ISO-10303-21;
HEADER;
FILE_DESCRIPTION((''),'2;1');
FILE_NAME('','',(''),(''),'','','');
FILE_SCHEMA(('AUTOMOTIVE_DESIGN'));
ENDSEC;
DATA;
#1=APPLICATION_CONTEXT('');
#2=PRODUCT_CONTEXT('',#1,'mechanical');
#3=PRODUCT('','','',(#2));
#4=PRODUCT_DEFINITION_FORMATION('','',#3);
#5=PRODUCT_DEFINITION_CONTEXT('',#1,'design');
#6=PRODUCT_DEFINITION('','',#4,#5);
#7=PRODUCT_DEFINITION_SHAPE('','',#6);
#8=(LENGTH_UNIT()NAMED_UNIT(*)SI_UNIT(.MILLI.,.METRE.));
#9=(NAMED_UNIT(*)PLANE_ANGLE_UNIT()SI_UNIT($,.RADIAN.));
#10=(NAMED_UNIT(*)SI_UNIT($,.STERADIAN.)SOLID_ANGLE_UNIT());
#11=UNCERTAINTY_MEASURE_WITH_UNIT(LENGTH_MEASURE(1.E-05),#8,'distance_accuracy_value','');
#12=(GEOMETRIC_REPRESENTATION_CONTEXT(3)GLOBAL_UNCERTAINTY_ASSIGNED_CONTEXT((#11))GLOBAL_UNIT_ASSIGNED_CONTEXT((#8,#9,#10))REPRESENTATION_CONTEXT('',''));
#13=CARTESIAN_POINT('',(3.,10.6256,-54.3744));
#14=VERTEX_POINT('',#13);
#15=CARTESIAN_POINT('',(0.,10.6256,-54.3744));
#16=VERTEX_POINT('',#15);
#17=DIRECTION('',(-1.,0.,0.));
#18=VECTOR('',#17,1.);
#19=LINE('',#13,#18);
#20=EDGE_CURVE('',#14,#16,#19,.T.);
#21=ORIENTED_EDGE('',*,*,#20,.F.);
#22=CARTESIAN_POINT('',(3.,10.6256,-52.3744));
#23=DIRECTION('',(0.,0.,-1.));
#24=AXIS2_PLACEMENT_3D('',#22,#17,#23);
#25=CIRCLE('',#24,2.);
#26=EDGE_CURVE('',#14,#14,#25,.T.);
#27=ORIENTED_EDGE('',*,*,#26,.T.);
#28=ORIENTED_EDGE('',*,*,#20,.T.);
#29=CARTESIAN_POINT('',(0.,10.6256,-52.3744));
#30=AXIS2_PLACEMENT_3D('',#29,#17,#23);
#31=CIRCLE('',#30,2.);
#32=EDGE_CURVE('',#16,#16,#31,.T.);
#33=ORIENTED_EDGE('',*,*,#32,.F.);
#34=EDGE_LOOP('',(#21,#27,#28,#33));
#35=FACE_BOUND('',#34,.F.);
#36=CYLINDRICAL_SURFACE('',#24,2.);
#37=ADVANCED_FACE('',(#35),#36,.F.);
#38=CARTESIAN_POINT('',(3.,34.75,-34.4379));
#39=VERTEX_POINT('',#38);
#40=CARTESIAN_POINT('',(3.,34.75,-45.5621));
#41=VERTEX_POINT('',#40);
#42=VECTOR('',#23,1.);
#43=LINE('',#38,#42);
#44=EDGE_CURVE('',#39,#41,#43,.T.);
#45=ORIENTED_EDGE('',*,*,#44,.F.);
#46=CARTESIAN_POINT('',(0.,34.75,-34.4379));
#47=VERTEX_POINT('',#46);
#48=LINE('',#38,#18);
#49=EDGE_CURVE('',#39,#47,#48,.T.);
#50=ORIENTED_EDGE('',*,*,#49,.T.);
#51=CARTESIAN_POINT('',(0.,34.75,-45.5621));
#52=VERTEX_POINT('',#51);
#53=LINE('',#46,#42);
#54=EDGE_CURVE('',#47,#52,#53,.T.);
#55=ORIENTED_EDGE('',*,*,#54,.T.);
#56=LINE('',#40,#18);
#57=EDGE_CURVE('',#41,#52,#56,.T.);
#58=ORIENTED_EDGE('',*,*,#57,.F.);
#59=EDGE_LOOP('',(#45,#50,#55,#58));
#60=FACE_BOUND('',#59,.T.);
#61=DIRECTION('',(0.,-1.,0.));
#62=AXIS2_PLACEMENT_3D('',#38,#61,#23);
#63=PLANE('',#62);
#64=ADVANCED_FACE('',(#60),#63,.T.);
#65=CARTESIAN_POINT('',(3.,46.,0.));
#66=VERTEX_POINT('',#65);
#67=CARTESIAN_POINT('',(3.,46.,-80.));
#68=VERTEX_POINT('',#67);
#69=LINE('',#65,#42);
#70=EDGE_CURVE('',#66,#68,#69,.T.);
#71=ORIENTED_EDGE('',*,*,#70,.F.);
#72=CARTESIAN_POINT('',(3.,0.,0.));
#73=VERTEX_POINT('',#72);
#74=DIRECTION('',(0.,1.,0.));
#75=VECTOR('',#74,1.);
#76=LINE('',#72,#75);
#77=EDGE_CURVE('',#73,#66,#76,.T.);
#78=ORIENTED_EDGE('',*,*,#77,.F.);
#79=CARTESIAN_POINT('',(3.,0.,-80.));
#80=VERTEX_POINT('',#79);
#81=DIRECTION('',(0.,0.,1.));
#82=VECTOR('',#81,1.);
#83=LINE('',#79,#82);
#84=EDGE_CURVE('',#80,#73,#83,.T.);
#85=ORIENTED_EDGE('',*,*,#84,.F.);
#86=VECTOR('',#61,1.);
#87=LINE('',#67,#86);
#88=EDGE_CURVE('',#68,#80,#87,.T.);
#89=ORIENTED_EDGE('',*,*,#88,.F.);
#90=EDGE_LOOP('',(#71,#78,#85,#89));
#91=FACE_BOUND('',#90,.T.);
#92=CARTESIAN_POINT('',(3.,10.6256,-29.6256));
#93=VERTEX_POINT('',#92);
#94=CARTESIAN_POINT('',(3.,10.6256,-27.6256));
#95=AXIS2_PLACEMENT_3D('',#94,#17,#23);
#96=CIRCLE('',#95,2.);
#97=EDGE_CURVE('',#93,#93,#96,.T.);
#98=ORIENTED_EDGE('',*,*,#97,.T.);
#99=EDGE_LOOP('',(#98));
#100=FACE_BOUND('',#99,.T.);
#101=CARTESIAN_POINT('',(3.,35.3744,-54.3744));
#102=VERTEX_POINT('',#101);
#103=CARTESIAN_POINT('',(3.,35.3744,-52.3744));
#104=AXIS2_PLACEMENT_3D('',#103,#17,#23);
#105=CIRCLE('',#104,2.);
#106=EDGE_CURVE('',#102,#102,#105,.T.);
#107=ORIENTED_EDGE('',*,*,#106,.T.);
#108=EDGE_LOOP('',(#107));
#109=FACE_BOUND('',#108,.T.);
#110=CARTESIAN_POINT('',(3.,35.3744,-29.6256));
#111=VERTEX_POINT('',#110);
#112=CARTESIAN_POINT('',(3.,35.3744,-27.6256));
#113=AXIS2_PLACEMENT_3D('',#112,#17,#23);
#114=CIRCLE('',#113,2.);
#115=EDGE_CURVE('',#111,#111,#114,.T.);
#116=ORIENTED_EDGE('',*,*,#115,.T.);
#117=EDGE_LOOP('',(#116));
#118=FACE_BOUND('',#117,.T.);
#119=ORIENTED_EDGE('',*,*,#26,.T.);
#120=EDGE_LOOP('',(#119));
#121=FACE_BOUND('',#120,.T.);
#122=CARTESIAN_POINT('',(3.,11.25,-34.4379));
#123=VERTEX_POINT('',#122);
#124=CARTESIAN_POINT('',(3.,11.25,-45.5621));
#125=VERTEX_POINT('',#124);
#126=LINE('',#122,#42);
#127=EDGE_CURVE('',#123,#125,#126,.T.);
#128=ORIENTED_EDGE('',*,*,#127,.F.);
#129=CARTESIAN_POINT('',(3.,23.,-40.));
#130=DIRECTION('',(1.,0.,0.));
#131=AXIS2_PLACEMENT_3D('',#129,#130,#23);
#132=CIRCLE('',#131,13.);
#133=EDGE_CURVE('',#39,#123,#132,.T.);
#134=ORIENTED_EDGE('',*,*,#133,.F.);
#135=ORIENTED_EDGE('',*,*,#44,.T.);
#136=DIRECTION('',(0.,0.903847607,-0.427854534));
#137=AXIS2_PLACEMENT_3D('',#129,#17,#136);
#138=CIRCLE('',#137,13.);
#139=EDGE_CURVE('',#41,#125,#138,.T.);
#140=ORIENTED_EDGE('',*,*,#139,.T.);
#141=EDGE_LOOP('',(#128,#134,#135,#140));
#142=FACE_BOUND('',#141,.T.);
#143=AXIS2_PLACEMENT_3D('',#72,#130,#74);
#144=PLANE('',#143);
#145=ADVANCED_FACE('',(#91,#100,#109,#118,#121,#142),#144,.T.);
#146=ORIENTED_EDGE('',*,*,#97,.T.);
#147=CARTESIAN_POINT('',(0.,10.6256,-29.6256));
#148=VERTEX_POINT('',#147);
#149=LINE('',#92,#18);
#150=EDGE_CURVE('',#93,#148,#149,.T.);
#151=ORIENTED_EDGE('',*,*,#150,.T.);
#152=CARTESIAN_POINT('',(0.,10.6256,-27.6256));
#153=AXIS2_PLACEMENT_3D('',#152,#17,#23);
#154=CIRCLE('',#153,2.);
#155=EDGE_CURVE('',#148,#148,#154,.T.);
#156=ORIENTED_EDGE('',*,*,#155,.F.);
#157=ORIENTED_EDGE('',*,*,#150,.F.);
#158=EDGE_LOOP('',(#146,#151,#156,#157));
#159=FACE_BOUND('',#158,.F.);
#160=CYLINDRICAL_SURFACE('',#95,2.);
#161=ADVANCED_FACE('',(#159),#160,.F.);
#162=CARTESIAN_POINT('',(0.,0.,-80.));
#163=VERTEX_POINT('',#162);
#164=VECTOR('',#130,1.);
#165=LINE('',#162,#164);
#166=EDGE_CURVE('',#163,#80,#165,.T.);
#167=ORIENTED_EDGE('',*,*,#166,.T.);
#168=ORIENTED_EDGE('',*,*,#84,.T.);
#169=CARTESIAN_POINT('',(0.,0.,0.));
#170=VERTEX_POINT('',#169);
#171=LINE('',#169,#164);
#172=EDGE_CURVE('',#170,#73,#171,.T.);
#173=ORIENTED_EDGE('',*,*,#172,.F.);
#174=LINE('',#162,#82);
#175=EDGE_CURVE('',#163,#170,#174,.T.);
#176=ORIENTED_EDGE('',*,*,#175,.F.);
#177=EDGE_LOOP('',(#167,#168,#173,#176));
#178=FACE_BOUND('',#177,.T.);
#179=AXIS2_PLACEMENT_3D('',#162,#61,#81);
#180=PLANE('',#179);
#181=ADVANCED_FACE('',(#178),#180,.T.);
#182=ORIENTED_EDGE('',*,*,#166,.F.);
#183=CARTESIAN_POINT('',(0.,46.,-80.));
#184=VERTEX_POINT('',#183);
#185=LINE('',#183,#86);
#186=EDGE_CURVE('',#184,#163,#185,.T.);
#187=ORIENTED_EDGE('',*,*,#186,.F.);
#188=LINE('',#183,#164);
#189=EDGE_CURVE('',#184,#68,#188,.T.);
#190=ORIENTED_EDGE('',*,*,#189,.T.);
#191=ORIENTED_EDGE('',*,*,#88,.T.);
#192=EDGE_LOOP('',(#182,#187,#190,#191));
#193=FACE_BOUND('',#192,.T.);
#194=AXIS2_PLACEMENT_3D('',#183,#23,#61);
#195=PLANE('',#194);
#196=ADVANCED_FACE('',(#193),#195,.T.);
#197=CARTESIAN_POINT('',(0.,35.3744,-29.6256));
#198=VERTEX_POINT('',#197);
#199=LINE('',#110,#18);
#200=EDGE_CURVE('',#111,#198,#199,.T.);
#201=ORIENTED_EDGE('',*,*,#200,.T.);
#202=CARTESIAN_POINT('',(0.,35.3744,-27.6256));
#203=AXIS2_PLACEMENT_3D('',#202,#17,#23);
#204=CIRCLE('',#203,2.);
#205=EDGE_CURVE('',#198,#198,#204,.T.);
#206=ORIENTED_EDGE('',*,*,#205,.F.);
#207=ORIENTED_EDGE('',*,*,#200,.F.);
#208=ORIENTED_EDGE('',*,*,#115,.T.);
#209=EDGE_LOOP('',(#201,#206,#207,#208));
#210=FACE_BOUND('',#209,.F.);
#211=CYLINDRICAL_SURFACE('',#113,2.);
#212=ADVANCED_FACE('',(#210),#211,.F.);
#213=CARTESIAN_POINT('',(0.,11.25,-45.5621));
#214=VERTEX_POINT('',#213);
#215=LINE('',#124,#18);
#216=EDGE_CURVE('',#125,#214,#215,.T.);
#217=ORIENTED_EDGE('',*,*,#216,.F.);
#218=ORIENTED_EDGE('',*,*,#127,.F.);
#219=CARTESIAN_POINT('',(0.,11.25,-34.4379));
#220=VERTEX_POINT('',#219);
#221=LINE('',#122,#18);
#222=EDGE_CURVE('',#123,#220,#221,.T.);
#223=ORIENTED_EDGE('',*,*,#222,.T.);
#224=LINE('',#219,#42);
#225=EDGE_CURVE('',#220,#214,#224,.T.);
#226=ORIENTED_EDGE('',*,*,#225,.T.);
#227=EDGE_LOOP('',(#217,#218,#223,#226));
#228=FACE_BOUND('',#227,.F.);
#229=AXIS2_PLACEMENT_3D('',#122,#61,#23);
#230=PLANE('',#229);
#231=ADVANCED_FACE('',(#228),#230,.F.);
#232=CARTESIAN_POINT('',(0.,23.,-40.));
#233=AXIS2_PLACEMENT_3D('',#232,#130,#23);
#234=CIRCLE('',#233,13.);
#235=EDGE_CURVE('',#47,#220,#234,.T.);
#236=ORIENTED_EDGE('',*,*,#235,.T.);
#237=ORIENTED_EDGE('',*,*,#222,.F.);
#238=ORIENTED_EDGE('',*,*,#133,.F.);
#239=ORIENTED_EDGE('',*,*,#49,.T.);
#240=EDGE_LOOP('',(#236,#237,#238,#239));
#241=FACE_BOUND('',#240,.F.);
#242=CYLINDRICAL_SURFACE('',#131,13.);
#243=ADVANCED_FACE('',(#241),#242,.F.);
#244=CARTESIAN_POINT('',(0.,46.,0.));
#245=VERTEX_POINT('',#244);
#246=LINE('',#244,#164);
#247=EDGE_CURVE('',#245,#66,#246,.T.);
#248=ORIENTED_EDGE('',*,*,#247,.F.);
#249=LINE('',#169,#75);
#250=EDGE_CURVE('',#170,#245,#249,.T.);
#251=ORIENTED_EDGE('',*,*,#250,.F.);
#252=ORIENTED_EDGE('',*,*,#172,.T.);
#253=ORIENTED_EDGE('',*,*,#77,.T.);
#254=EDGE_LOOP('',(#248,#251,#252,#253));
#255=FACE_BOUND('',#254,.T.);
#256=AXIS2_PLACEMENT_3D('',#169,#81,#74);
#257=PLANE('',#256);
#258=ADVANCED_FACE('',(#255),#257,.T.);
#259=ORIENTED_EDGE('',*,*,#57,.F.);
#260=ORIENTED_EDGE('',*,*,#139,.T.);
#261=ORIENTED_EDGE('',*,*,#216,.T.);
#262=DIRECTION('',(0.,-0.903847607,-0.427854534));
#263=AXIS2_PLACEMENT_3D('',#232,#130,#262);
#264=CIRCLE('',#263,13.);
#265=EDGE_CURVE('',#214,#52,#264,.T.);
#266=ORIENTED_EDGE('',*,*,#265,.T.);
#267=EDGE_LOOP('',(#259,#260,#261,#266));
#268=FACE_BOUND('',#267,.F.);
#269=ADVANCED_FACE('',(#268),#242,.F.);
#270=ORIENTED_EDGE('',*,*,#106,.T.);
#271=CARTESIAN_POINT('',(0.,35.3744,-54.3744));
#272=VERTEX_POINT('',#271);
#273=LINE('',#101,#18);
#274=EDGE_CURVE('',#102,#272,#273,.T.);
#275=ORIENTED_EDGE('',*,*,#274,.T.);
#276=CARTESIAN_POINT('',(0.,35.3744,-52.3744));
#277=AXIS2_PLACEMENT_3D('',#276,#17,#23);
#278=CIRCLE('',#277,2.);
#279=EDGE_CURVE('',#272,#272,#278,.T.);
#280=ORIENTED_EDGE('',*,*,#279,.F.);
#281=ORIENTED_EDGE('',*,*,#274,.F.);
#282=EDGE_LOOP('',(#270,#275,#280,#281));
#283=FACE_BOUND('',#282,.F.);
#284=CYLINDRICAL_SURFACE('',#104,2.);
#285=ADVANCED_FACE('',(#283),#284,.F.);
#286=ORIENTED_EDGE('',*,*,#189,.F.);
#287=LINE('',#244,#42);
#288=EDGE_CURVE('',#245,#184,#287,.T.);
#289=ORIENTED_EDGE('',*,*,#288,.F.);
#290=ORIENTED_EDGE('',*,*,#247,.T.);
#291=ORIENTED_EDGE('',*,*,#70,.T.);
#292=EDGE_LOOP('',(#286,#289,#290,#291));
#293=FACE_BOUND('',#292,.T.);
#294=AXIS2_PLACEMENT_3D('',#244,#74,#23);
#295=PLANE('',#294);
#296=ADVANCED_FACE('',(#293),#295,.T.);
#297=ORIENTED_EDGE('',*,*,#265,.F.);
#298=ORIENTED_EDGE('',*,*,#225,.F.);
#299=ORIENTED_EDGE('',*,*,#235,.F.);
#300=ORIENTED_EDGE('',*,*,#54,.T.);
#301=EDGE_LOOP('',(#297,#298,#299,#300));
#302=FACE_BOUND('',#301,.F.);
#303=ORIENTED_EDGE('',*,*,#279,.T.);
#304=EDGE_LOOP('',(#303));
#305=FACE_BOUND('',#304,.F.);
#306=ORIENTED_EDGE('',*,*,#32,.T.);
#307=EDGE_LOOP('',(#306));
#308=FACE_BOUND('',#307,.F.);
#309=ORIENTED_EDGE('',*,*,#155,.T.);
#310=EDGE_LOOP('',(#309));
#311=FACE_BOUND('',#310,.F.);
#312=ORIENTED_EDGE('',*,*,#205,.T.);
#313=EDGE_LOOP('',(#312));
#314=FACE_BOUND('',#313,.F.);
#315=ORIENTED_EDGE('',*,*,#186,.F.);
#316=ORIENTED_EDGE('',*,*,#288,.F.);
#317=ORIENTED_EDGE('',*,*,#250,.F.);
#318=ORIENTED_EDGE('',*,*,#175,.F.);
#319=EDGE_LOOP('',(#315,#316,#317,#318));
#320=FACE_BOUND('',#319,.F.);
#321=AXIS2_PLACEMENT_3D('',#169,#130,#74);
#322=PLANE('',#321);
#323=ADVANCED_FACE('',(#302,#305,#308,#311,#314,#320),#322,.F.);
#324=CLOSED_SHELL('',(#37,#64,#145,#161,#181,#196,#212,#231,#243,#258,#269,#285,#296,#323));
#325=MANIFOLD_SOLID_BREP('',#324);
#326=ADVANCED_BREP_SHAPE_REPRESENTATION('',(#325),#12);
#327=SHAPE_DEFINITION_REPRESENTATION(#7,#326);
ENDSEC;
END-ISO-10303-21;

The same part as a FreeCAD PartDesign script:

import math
import FreeCAD as App
import Part
import Sketcher
Q = App.Units.Quantity


def add_polygon(sketch, points):
    """Adds a closed chain of lines whose ends are joined by coincident constraints."""
    first, n = sketch.GeometryCount, len(points)
    for a, b in zip(points, points[1:] + points[:1]):
        sketch.addGeometry(Part.LineSegment(App.Vector(*a, 0), App.Vector(*b, 0)), False)
    for i in range(n):
        sketch.addConstraint(Sketcher.Constraint("Coincident", first + i, 2, first + (i + 1) % n, 1))

doc = App.newDocument("Part")
params = doc.addObject("Spreadsheet::Sheet", "Params")
for row, (alias, value) in enumerate([
    ("sketch1_width", "46 mm"),
    ("sketch1_height", "80 mm"),
    ("pad1_length", "3 mm"),
    ("sketch2_radius", "13 mm"),
    ("pocket1_length", "3 mm"),
    ("sketch3_diameter", "4 mm"),
    ("hole_diameter", "4 mm"),
    ("hole_depth", "3 mm"),
], start=1):
    params.set(f"A{row}", alias)
    params.set(f"B{row}", "=" + value)
    params.setAlias(f"B{row}", alias)

body = doc.addObject("PartDesign::Body", "Body")

# Sketch on YZ plane
sketch1 = doc.addObject("Sketcher::SketchObject", "Sketch")
body.addObject(sketch1)
sketch1.AttachmentSupport = (doc.YZ_Plane, [""])
sketch1.MapMode = "FlatFace"
add_polygon(sketch1, [(46, 0), (0, 0), (0, -80), (46, -80)])  # lines 0-3
sketch1.addConstraint([
    Sketcher.Constraint("Horizontal", 0),
    Sketcher.Constraint("Vertical", 1),
    Sketcher.Constraint("Horizontal", 2),
    Sketcher.Constraint("Vertical", 3),
    Sketcher.Constraint("Coincident", 0, 2, -1, 1),
    Sketcher.Constraint("DistanceX", 0, 2, 0, 1, Q("46 mm")),
    Sketcher.Constraint("DistanceY", 1, 2, 1, 1, Q("80 mm")),
])
sketch1.setExpression("Constraints[9]", "Params.sketch1_width")
sketch1.setExpression("Constraints[10]", "Params.sketch1_height")
pad1 = doc.addObject("PartDesign::Pad", "Pad")
body.addObject(pad1)
pad1.Profile = sketch1
pad1.setExpression("Length", "Params.pad1_length")

# Sketch on YZ plane
sketch2 = doc.addObject("Sketcher::SketchObject", "Sketch001")
body.addObject(sketch2)
sketch2.AttachmentSupport = (doc.YZ_Plane, [""])
sketch2.MapMode = "FlatFace"
sketch2.AttachmentOffset = App.Placement(App.Vector(0, 0, 3), App.Rotation())
sketch2.addGeometry([
    Part.ArcOfCircle(Part.Circle(App.Vector(23, -40, 0), App.Vector(0, 0, 1), 13), math.radians(-155), math.radians(-25)),
    Part.LineSegment(App.Vector(35, -46, 0), App.Vector(35, -34, 0)),
    Part.ArcOfCircle(Part.Circle(App.Vector(23, -40, 0), App.Vector(0, 0, 1), 13), math.radians(25), math.radians(155)),
    Part.LineSegment(App.Vector(11, -34, 0), App.Vector(11, -46, 0)),
], False)
sketch2.addConstraint([
    Sketcher.Constraint("Coincident", 0, 2, 1, 1),
    Sketcher.Constraint("Coincident", 1, 2, 2, 1),
    Sketcher.Constraint("Coincident", 2, 2, 3, 1),
    Sketcher.Constraint("Coincident", 3, 2, 0, 1),
    Sketcher.Constraint("Vertical", 1),
    Sketcher.Constraint("Vertical", 3),
    Sketcher.Constraint("Coincident", 2, 3, 0, 3),
    Sketcher.Constraint("Equal", 0, 2),
    Sketcher.Constraint("Horizontal", 1, 2, 2, 2),
    Sketcher.Constraint("Radius", 0, Q("13 mm")),
    Sketcher.Constraint("DistanceX", -1, 1, 0, 3, Q("23 mm")),
    Sketcher.Constraint("DistanceY", 0, 3, -1, 1, Q("40 mm")),
    Sketcher.Constraint("DistanceX", 2, 2, 1, 2, Q("23.5 mm")),
])
sketch2.setExpression("Constraints[9]", "Params.sketch2_radius")
pocket1 = doc.addObject("PartDesign::Pocket", "Pocket")
body.addObject(pocket1)
pocket1.Profile = sketch2
pocket1.setExpression("Length", "Params.pocket1_length")

# Sketch on YZ plane
sketch3 = doc.addObject("Sketcher::SketchObject", "Sketch002")
body.addObject(sketch3)
sketch3.AttachmentSupport = (doc.YZ_Plane, [""])
sketch3.MapMode = "FlatFace"
sketch3.AttachmentOffset = App.Placement(App.Vector(0, 0, 3), App.Rotation())
sketch3.addGeometry([
    Part.Circle(App.Vector(35.4, -27.6, 0), App.Vector(0, 0, 1), 2),
    Part.Circle(App.Vector(35.4, -52.4, 0), App.Vector(0, 0, 1), 2),
    Part.Circle(App.Vector(10.6, -52.4, 0), App.Vector(0, 0, 1), 2),
    Part.Circle(App.Vector(10.6, -27.6, 0), App.Vector(0, 0, 1), 2),
], False)
sketch3.addConstraint([
    Sketcher.Constraint("Equal", 0, 1),
    Sketcher.Constraint("Equal", 1, 2),
    Sketcher.Constraint("Equal", 2, 3),
    Sketcher.Constraint("Horizontal", 1, 3, 2, 3),
    Sketcher.Constraint("Horizontal", 0, 3, 3, 3),
    Sketcher.Constraint("Vertical", 0, 3, 1, 3),
    Sketcher.Constraint("Vertical", 2, 3, 3, 3),
    Sketcher.Constraint("Diameter", 0, Q("4 mm")),
    Sketcher.Constraint("DistanceX", -1, 1, 0, 3, Q("35.3744 mm")),
    Sketcher.Constraint("DistanceY", 0, 3, -1, 1, Q("27.6256 mm")),
    Sketcher.Constraint("DistanceY", 1, 3, -1, 1, Q("52.3744 mm")),
    Sketcher.Constraint("DistanceX", -1, 1, 2, 3, Q("10.6256 mm")),
])
sketch3.setExpression("Constraints[7]", "Params.sketch3_diameter")
doc.recompute()
hole = doc.addObject("PartDesign::Hole", "Hole")
body.addObject(hole)
hole.Profile = sketch3
hole.ThreadType = "None"
hole.setExpression("Diameter", "Params.hole_diameter")
hole.DepthType = "Dimension"
hole.setExpression("Depth", "Params.hole_depth")
hole.DrillPoint = "Flat"

doc.recompute()
